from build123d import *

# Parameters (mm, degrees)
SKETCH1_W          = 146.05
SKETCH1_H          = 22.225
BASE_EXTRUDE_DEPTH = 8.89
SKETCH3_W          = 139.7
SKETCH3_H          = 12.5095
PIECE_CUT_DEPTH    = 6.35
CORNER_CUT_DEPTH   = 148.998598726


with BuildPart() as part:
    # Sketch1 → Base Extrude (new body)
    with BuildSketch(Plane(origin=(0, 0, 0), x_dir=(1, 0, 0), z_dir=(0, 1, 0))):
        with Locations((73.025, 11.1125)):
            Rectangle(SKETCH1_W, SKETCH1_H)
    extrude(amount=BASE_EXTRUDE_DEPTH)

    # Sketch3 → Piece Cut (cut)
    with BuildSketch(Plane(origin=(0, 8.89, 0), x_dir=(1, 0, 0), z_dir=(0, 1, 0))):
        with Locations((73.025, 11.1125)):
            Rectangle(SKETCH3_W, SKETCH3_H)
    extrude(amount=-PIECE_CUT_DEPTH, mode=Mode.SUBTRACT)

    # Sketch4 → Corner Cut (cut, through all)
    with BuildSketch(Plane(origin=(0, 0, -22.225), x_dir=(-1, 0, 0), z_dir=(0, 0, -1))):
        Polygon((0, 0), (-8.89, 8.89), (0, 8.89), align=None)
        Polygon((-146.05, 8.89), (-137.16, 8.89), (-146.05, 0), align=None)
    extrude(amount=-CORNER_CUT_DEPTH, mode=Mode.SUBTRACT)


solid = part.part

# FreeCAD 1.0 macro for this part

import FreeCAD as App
import Part
import Sketcher
from FreeCAD import Vector
Q = App.Units.Quantity


def add_polygon(sketch, points):
    """Adds a closed chain of lines whose ends are joined by coincident constraints."""
    first, n = sketch.GeometryCount, len(points)
    for a, b in zip(points, points[1:] + points[:1]):
        sketch.addGeometry(Part.LineSegment(App.Vector(*a, 0), App.Vector(*b, 0)), False)
    for i in range(n):
        sketch.addConstraint(Sketcher.Constraint("Coincident", first + i, 2, first + (i + 1) % n, 1))

doc = App.newDocument("Part")
body = doc.addObject("PartDesign::Body", "Body")

# Sketch on XZ plane
sketch1 = body.newObject("Sketcher::SketchObject", "Sketch")
sketch1.AttachmentSupport = (doc.getObject("XZ_Plane"), [""])
sketch1.MapMode = "FlatFace"
add_polygon(sketch1, [(0, -22), (0, 0), (146, 0), (146, -22)])  # lines 0-3
sketch1.addConstraint([
    Sketcher.Constraint("Vertical", 0),
    Sketcher.Constraint("Horizontal", 1),
    Sketcher.Constraint("Vertical", 2),
    Sketcher.Constraint("Horizontal", 3),
    Sketcher.Constraint("Coincident", 0, 2, -1, 1),
    Sketcher.Constraint("DistanceX", 1, 1, 1, 2, Q("5.75 in")),
    Sketcher.Constraint("DistanceY", 0, 1, 0, 2, Q("0.875 in")),
])
pad1 = body.newObject("PartDesign::Pad", "Pad")
pad1.Profile = sketch1
pad1.Length = Q("0.35 in")
pad1.Reversed = True

# Sketch on XZ plane
sketch2 = body.newObject("Sketcher::SketchObject", "Sketch001")
sketch2.AttachmentSupport = (doc.getObject("XZ_Plane"), [""])
sketch2.MapMode = "FlatFace"
sketch2.AttachmentOffset = App.Placement(Vector(0, 0, -0.35 * 25.4), App.Rotation())
add_polygon(sketch2, [(3, -17), (3, -5), (143, -5), (143, -17)])  # lines 0-3
sketch2.addConstraint([
    Sketcher.Constraint("Vertical", 0),
    Sketcher.Constraint("Horizontal", 1),
    Sketcher.Constraint("Vertical", 2),
    Sketcher.Constraint("Horizontal", 3),
    Sketcher.Constraint("DistanceX", 1, 1, 1, 2, Q("5.5 in")),
    Sketcher.Constraint("DistanceY", 0, 1, 0, 2, Q("0.4925 in")),
    Sketcher.Constraint("DistanceX", -1, 1, 0, 2, Q("0.125 in")),
    Sketcher.Constraint("DistanceY", 0, 2, -1, 1, Q("4.85775 mm")),
])
pocket1 = body.newObject("PartDesign::Pocket", "Pocket")
pocket1.Profile = sketch2
pocket1.Length = Q("0.25 in")
pocket1.Reversed = True

# Sketch on XY plane
sketch3 = body.newObject("Sketcher::SketchObject", "Sketch002")
sketch3.AttachmentSupport = (doc.getObject("XY_Plane"), [""])
sketch3.MapMode = "FlatFace"
sketch3.AttachmentOffset = App.Placement(Vector(0, 0, -0.875 * 25.4), App.Rotation())
add_polygon(sketch3, [(9, 9), (0, 0), (0, 9)])  # lines 0-2
add_polygon(sketch3, [(137, 9), (146, 9), (146, 0)])  # lines 3-5
sketch3.addConstraint([
    Sketcher.Constraint("Vertical", 1),
    Sketcher.Constraint("Horizontal", 2),
    Sketcher.Constraint("Horizontal", 3),
    Sketcher.Constraint("Vertical", 4),
    Sketcher.Constraint("Coincident", 0, 2, -1, 1),
    Sketcher.Constraint("PointOnObject", 4, 2, -1),
    Sketcher.Constraint("Perpendicular", 0, 5),
    Sketcher.Constraint("Horizontal", 2, 2, 3, 2),
    Sketcher.Constraint("Equal", 2, 3),
    Sketcher.Constraint("DistanceX", 2, 1, 2, 2, Q("0.35 in")),
    Sketcher.Constraint("DistanceX", -1, 1, 5, 2, Q("5.4 in")),
])
pocket2 = body.newObject("PartDesign::Pocket", "Pocket001")
pocket2.Profile = sketch3
pocket2.Type = "ThroughAll"
pocket2.Reversed = True

doc.recompute()
